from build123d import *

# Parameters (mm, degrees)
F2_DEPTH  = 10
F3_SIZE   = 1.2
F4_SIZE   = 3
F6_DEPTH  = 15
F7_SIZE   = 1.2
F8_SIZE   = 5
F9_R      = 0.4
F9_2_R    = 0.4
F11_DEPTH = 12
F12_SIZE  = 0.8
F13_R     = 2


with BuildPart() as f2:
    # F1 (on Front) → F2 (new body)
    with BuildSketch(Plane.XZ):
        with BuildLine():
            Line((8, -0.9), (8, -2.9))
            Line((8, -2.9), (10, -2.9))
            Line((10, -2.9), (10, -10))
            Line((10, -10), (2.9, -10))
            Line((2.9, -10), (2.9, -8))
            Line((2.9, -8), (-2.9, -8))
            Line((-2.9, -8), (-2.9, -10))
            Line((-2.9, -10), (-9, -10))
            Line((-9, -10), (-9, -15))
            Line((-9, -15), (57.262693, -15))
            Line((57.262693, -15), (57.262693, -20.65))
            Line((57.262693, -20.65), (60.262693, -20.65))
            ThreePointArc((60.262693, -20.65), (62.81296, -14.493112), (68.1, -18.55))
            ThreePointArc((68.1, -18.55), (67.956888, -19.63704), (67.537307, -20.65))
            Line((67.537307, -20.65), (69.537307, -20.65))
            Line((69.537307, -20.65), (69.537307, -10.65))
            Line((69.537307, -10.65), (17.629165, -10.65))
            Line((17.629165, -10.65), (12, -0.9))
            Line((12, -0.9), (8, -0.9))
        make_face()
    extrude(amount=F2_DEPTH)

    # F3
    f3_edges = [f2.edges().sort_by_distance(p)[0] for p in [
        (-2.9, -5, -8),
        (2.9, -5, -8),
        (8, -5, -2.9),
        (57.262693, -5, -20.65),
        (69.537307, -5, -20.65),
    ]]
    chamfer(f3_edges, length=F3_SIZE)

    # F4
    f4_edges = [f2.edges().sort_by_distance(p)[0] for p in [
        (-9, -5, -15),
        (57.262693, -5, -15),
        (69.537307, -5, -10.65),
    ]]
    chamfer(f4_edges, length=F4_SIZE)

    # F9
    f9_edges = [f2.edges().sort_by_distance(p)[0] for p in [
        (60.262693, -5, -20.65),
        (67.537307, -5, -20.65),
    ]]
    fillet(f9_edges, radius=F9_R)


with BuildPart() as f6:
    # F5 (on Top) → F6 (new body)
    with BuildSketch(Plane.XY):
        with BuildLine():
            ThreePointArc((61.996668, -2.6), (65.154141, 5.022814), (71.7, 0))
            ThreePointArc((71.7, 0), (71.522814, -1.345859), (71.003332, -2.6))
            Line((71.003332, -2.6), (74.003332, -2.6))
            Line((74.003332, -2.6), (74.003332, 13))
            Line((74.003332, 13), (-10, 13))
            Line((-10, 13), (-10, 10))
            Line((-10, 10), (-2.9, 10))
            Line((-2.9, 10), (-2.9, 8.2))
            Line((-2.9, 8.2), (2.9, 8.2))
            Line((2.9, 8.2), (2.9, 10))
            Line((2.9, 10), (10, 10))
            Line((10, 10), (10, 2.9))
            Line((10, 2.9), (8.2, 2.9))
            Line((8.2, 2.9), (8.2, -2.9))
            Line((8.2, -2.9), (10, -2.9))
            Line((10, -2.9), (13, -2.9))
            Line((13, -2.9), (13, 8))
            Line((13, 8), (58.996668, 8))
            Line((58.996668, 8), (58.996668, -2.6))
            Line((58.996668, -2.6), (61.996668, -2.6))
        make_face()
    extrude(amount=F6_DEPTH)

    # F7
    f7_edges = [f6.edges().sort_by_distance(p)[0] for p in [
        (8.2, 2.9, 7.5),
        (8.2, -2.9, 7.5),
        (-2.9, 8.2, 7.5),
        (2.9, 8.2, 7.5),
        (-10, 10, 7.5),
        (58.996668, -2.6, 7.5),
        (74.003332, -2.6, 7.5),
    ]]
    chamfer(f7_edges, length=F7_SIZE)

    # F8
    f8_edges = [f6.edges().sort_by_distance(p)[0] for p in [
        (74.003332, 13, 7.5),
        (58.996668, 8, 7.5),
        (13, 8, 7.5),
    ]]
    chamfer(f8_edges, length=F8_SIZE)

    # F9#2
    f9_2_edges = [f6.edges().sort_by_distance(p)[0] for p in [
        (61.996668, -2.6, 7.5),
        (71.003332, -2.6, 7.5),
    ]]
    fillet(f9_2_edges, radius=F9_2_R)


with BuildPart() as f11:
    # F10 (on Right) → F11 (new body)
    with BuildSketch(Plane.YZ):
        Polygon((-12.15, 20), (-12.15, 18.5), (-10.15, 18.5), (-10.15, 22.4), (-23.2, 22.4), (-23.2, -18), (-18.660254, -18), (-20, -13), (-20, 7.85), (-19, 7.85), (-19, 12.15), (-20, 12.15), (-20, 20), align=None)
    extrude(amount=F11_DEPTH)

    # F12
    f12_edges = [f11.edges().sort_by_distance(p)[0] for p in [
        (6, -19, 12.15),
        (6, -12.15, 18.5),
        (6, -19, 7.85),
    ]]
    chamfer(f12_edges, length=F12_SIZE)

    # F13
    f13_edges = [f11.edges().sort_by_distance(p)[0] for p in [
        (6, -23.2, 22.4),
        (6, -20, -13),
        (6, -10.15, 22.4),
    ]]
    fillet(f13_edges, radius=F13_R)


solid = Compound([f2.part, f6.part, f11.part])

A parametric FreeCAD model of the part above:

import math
import FreeCAD as App
import Part
import Sketcher
Q = App.Units.Quantity


def edges_at(feature, points):
    """Names of the edges that pass closest to the given points."""
    edges = feature.Shape.Edges
    near = lambda p: min(range(len(edges)), key=lambda i: edges[i].distToShape(Part.Vertex(*p))[0])
    return sorted({f"Edge{near(p) + 1}" for p in points})

doc = App.newDocument("Part")
body = doc.addObject("PartDesign::Body", "Body")

# Sketch on XZ plane
sketch1 = doc.addObject("Sketcher::SketchObject", "Sketch")
body.addObject(sketch1)
sketch1.AttachmentSupport = (doc.XZ_Plane, [""])
sketch1.MapMode = "FlatFace"
sketch1.addGeometry([
    Part.LineSegment(App.Vector(8, -0.9, 0), App.Vector(8, -2.9, 0)),  # 0
    Part.LineSegment(App.Vector(8, -2.9, 0), App.Vector(10, -2.9, 0)),  # 1
    Part.LineSegment(App.Vector(10, -2.9, 0), App.Vector(10, -10, 0)),  # 2
    Part.LineSegment(App.Vector(10, -10, 0), App.Vector(2.9, -10, 0)),  # 3
    Part.LineSegment(App.Vector(2.9, -10, 0), App.Vector(2.9, -8, 0)),  # 4
    Part.LineSegment(App.Vector(2.9, -8, 0), App.Vector(-2.9, -8, 0)),  # 5
    Part.LineSegment(App.Vector(-2.9, -8, 0), App.Vector(-2.9, -10, 0)),  # 6
    Part.LineSegment(App.Vector(-2.9, -10, 0), App.Vector(-9, -10, 0)),  # 7
    Part.LineSegment(App.Vector(-9, -10, 0), App.Vector(-9, -15, 0)),  # 8
    Part.LineSegment(App.Vector(-9, -15, 0), App.Vector(57.3, -15, 0)),  # 9
    Part.LineSegment(App.Vector(57.3, -15, 0), App.Vector(57.3, -20.6, 0)),  # 10
    Part.LineSegment(App.Vector(57.3, -20.6, 0), App.Vector(60.3, -20.6, 0)),  # 11
    Part.ArcOfCircle(Part.Circle(App.Vector(63.9, -18.6, 0), App.Vector(0, 0, 1), 4.2), math.radians(0), math.radians(210)),  # 12
    Part.ArcOfCircle(Part.Circle(App.Vector(63.9, -18.5, 0), App.Vector(0, 0, 1), 4.2), math.radians(-30), math.radians(0)),  # 13
    Part.LineSegment(App.Vector(67.5, -20.6, 0), App.Vector(69.5, -20.6, 0)),  # 14
    Part.LineSegment(App.Vector(69.5, -20.6, 0), App.Vector(69.5, -10.7, 0)),  # 15
    Part.LineSegment(App.Vector(69.5, -10.7, 0), App.Vector(17.6, -10.7, 0)),  # 16
    Part.LineSegment(App.Vector(17.6, -10.7, 0), App.Vector(12, -0.9, 0)),  # 17
    Part.LineSegment(App.Vector(12, -0.9, 0), App.Vector(8, -0.9, 0)),  # 18
], False)
sketch1.addConstraint([
    Sketcher.Constraint("Coincident", 0, 2, 1, 1),
    Sketcher.Constraint("Coincident", 1, 2, 2, 1),
    Sketcher.Constraint("Coincident", 2, 2, 3, 1),
    Sketcher.Constraint("Coincident", 3, 2, 4, 1),
    Sketcher.Constraint("Coincident", 4, 2, 5, 1),
    Sketcher.Constraint("Coincident", 5, 2, 6, 1),
    Sketcher.Constraint("Coincident", 6, 2, 7, 1),
    Sketcher.Constraint("Coincident", 7, 2, 8, 1),
    Sketcher.Constraint("Coincident", 8, 2, 9, 1),
    Sketcher.Constraint("Coincident", 9, 2, 10, 1),
    Sketcher.Constraint("Coincident", 10, 2, 11, 1),
    Sketcher.Constraint("Coincident", 11, 2, 12, 2),
    Sketcher.Constraint("Tangent", 12, 1, 13, 2),
    Sketcher.Constraint("Coincident", 13, 1, 14, 1),
    Sketcher.Constraint("Coincident", 14, 2, 15, 1),
    Sketcher.Constraint("Coincident", 15, 2, 16, 1),
    Sketcher.Constraint("Coincident", 16, 2, 17, 1),
    Sketcher.Constraint("Coincident", 17, 2, 18, 1),
    Sketcher.Constraint("Coincident", 18, 2, 0, 1),
    Sketcher.Constraint("Vertical", 0),
    Sketcher.Constraint("Horizontal", 1),
    Sketcher.Constraint("Vertical", 2),
    Sketcher.Constraint("Horizontal", 3),
    Sketcher.Constraint("Vertical", 4),
    Sketcher.Constraint("Horizontal", 5),
    Sketcher.Constraint("Vertical", 6),
    Sketcher.Constraint("Horizontal", 7),
    Sketcher.Constraint("Vertical", 8),
    Sketcher.Constraint("Horizontal", 9),
    Sketcher.Constraint("Vertical", 10),
    Sketcher.Constraint("Horizontal", 11),
    Sketcher.Constraint("Horizontal", 14),
    Sketcher.Constraint("Vertical", 15),
    Sketcher.Constraint("Horizontal", 16),
    Sketcher.Constraint("Horizontal", 18),
    Sketcher.Constraint("Symmetric", 3, 2, 6, 2, -2),
    Sketcher.Constraint("Horizontal", 11, 2, 13, 1),
    Sketcher.Constraint("Equal", 1, 14),
    Sketcher.Constraint("Equal", 14, 0),
    Sketcher.Constraint("Equal", 3, 2),
    Sketcher.Constraint("Equal", 0, 4),
    Sketcher.Constraint("Radius", 12, 4.2),
    Sketcher.Constraint("DistanceX", 1, 1, 1, 2, 2.0),
    Sketcher.Constraint("DistanceX", 11, 1, 11, 2, 3.0),
    Sketcher.Constraint("DistanceX", 18, 2, 18, 1, 4.0),
    Sketcher.Constraint("DistanceY", 8, 2, 8, 1, 5.0),
    Sketcher.Constraint("DistanceY", 15, 1, 15, 2, 10.0),
    Sketcher.Constraint("Angle", 17, Q("119.999999 deg")),
    Sketcher.Constraint("DistanceX", 3, 2, 3, 1, 7.1),
    Sketcher.Constraint("DistanceX", 5, 2, 5, 1, 5.8),
    Sketcher.Constraint("DistanceX", 7, 2, 7, 1, 6.1),
    Sketcher.Constraint("DistanceY", 2, 2, -1, 1, 10.0),
    Sketcher.Constraint("DistanceX", 3, 2, 12, 3, 61.0),
    Sketcher.Constraint("DistanceY", 10, 2, 10, 1, 5.65),
    Sketcher.Constraint("DistanceY", 10, 2, 12, 3, 2.1),
    Sketcher.Constraint("DistanceY", 11, 2, 12, 1, 2.1),
    Sketcher.Constraint("Radius", 13, 4.200017),
])
pad1 = doc.addObject("PartDesign::Pad", "Pad")
body.addObject(pad1)
pad1.Profile = sketch1
pad1.Length = 10
doc.recompute()

chamfer = doc.addObject("PartDesign::Chamfer", "Chamfer")
body.addObject(chamfer)
chamfer.Base = (pad1, edges_at(pad1, [
    (-2.9, -5, -8),
    (2.9, -5, -8),
    (8, -5, -2.9),
    (57.263, -5, -20.65),
    (69.537, -5, -20.65),
]))
chamfer.Size = 1.2
doc.recompute()

chamfer2 = doc.addObject("PartDesign::Chamfer", "Chamfer001")
body.addObject(chamfer2)
chamfer2.Base = (chamfer, edges_at(chamfer, [(-9, -5, -15), (57.263, -5, -15), (69.537, -5, -10.65)]))
chamfer2.Size = 3
doc.recompute()

fillet = doc.addObject("PartDesign::Fillet", "Fillet")
body.addObject(fillet)
fillet.Base = (chamfer2, edges_at(chamfer2, [(60.263, -5, -20.65), (67.537, -5, -20.65)]))
fillet.Radius = 0.4
body2 = doc.addObject("PartDesign::Body", "Body001")

# Sketch on XY plane
sketch2 = doc.addObject("Sketcher::SketchObject", "Sketch001")
body2.addObject(sketch2)
sketch2.AttachmentSupport = (doc.getObject("XY_Plane001"), [""])
sketch2.MapMode = "FlatFace"
sketch2.addGeometry([
    Part.ArcOfCircle(Part.Circle(App.Vector(66.5, 0, 0), App.Vector(0, 0, 1), 5.2), math.radians(0), math.radians(210)),  # 0
    Part.ArcOfCircle(Part.Circle(App.Vector(66.5, 0, 0), App.Vector(0, 0, 1), 5.2), math.radians(-30), math.radians(0)),  # 1
    Part.LineSegment(App.Vector(71, -2.6, 0), App.Vector(74, -2.6, 0)),  # 2
    Part.LineSegment(App.Vector(74, -2.6, 0), App.Vector(74, 13, 0)),  # 3
    Part.LineSegment(App.Vector(74, 13, 0), App.Vector(-10, 13, 0)),  # 4
    Part.LineSegment(App.Vector(-10, 13, 0), App.Vector(-10, 10, 0)),  # 5
    Part.LineSegment(App.Vector(-10, 10, 0), App.Vector(-2.9, 10, 0)),  # 6
    Part.LineSegment(App.Vector(-2.9, 10, 0), App.Vector(-2.9, 8.2, 0)),  # 7
    Part.LineSegment(App.Vector(-2.9, 8.2, 0), App.Vector(2.9, 8.2, 0)),  # 8
    Part.LineSegment(App.Vector(2.9, 8.2, 0), App.Vector(2.9, 10, 0)),  # 9
    Part.LineSegment(App.Vector(2.9, 10, 0), App.Vector(10, 10, 0)),  # 10
    Part.LineSegment(App.Vector(10, 10, 0), App.Vector(10, 2.9, 0)),  # 11
    Part.LineSegment(App.Vector(10, 2.9, 0), App.Vector(8.2, 2.9, 0)),  # 12
    Part.LineSegment(App.Vector(8.2, 2.9, 0), App.Vector(8.2, -2.9, 0)),  # 13
    Part.LineSegment(App.Vector(8.2, -2.9, 0), App.Vector(13, -2.9, 0)),  # 14
    Part.LineSegment(App.Vector(13, -2.9, 0), App.Vector(13, 8, 0)),  # 15
    Part.LineSegment(App.Vector(13, 8, 0), App.Vector(59, 8, 0)),  # 16
    Part.LineSegment(App.Vector(59, 8, 0), App.Vector(59, -2.6, 0)),  # 17
    Part.LineSegment(App.Vector(59, -2.6, 0), App.Vector(62, -2.6, 0)),  # 18
], False)
sketch2.addConstraint([
    Sketcher.Constraint("Tangent", 0, 1, 1, 2),
    Sketcher.Constraint("Coincident", 1, 1, 2, 1),
    Sketcher.Constraint("Coincident", 2, 2, 3, 1),
    Sketcher.Constraint("Coincident", 3, 2, 4, 1),
    Sketcher.Constraint("Coincident", 4, 2, 5, 1),
    Sketcher.Constraint("Coincident", 5, 2, 6, 1),
    Sketcher.Constraint("Coincident", 6, 2, 7, 1),
    Sketcher.Constraint("Coincident", 7, 2, 8, 1),
    Sketcher.Constraint("Coincident", 8, 2, 9, 1),
    Sketcher.Constraint("Coincident", 9, 2, 10, 1),
    Sketcher.Constraint("Coincident", 10, 2, 11, 1),
    Sketcher.Constraint("Coincident", 11, 2, 12, 1),
    Sketcher.Constraint("Coincident", 12, 2, 13, 1),
    Sketcher.Constraint("Coincident", 13, 2, 14, 1),
    Sketcher.Constraint("Coincident", 14, 2, 15, 1),
    Sketcher.Constraint("Coincident", 15, 2, 16, 1),
    Sketcher.Constraint("Coincident", 16, 2, 17, 1),
    Sketcher.Constraint("Coincident", 17, 2, 18, 1),
    Sketcher.Constraint("Coincident", 18, 2, 0, 2),
    Sketcher.Constraint("Horizontal", 2),
    Sketcher.Constraint("Vertical", 3),
    Sketcher.Constraint("Horizontal", 4),
    Sketcher.Constraint("Vertical", 5),
    Sketcher.Constraint("Horizontal", 6),
    Sketcher.Constraint("Vertical", 7),
    Sketcher.Constraint("Horizontal", 8),
    Sketcher.Constraint("Vertical", 9),
    Sketcher.Constraint("Horizontal", 10),
    Sketcher.Constraint("Vertical", 11),
    Sketcher.Constraint("Horizontal", 12),
    Sketcher.Constraint("Vertical", 13),
    Sketcher.Constraint("Horizontal", 14),
    Sketcher.Constraint("Vertical", 15),
    Sketcher.Constraint("Horizontal", 16),
    Sketcher.Constraint("Vertical", 17),
    Sketcher.Constraint("Horizontal", 18),
    Sketcher.Constraint("Symmetric", 6, 2, 9, 2, -2),
    Sketcher.Constraint("PointOnObject", 0, 3, -1),
    Sketcher.Constraint("PointOnObject", 0, 1, -1),
    Sketcher.Constraint("Horizontal", 2, 2, 17, 2),
    Sketcher.Constraint("Equal", 6, 10),
    Sketcher.Constraint("Equal", 2, 18),
    Sketcher.Constraint("Equal", 18, 5),
    Sketcher.Constraint("Equal", 12, 7),
    Sketcher.Constraint("Equal", 10, 11),
    Sketcher.Constraint("Equal", 8, 13),
    Sketcher.Constraint("Radius", 0, 5.2),
    Sketcher.Constraint("DistanceX", 2, 1, 2, 2, 3.0),
    Sketcher.Constraint("DistanceX", 6, 1, 6, 2, 7.1),
    Sketcher.Constraint("DistanceX", 8, 1, 8, 2, 5.8),
    Sketcher.Constraint("DistanceX", 12, 2, 12, 1, 1.8),
    Sketcher.Constraint("DistanceX", 14, 1, 14, 2, 4.8),
    Sketcher.Constraint("DistanceY", 3, 1, 3, 2, 15.6),
    Sketcher.Constraint("DistanceY", 15, 1, 15, 2, 10.9),
    Sketcher.Constraint("DistanceY", -1, 1, 3, 2, 13.0),
    Sketcher.Constraint("DistanceX", -1, 1, 0, 3, 66.5),
    Sketcher.Constraint("Radius", 1, 5.200007),
])
pad2 = doc.addObject("PartDesign::Pad", "Pad001")
body2.addObject(pad2)
pad2.Profile = sketch2
pad2.Length = 15
doc.recompute()

chamfer3 = doc.addObject("PartDesign::Chamfer", "Chamfer002")
body2.addObject(chamfer3)
chamfer3.Base = (pad2, edges_at(pad2, [
    (8.2, 2.9, 7.5),
    (8.2, -2.9, 7.5),
    (-2.9, 8.2, 7.5),
    (2.9, 8.2, 7.5),
    (-10, 10, 7.5),
    (58.997, -2.6, 7.5),
    (74.003, -2.6, 7.5),
]))
chamfer3.Size = 1.2
doc.recompute()

chamfer4 = doc.addObject("PartDesign::Chamfer", "Chamfer003")
body2.addObject(chamfer4)
chamfer4.Base = (chamfer3, edges_at(chamfer3, [(74.003, 13, 7.5), (58.997, 8, 7.5), (13, 8, 7.5)]))
chamfer4.Size = 5
doc.recompute()

fillet2 = doc.addObject("PartDesign::Fillet", "Fillet001")
body2.addObject(fillet2)
fillet2.Base = (chamfer4, edges_at(chamfer4, [(61.997, -2.6, 7.5), (71.003, -2.6, 7.5)]))
fillet2.Radius = 0.4
body3 = doc.addObject("PartDesign::Body", "Body002")

# Sketch on YZ plane
sketch3 = doc.addObject("Sketcher::SketchObject", "Sketch002")
body3.addObject(sketch3)
sketch3.AttachmentSupport = (doc.getObject("YZ_Plane002"), [""])
sketch3.MapMode = "FlatFace"
sketch3.addGeometry([
    Part.LineSegment(App.Vector(-12.2, 20, 0), App.Vector(-12.2, 18.5, 0)),  # 0
    Part.LineSegment(App.Vector(-12.2, 18.5, 0), App.Vector(-10.2, 18.5, 0)),  # 1
    Part.LineSegment(App.Vector(-10.2, 18.5, 0), App.Vector(-10.2, 22.4, 0)),  # 2
    Part.LineSegment(App.Vector(-10.2, 22.4, 0), App.Vector(-23.2, 22.4, 0)),  # 3
    Part.LineSegment(App.Vector(-23.2, 22.4, 0), App.Vector(-23.2, -18, 0)),  # 4
    Part.LineSegment(App.Vector(-23.2, -18, 0), App.Vector(-18.7, -18, 0)),  # 5
    Part.LineSegment(App.Vector(-18.7, -18, 0), App.Vector(-20, -13, 0)),  # 6
    Part.LineSegment(App.Vector(-20, -13, 0), App.Vector(-20, 7.8, 0)),  # 7
    Part.LineSegment(App.Vector(-20, 7.8, 0), App.Vector(-19, 7.8, 0)),  # 8
    Part.LineSegment(App.Vector(-19, 7.8, 0), App.Vector(-19, 12.2, 0)),  # 9
    Part.LineSegment(App.Vector(-19, 12.2, 0), App.Vector(-20, 12.2, 0)),  # 10
    Part.LineSegment(App.Vector(-20, 12.2, 0), App.Vector(-20, 20, 0)),  # 11
    Part.LineSegment(App.Vector(-20, 20, 0), App.Vector(-12.2, 20, 0)),  # 12
], False)
sketch3.addConstraint([
    Sketcher.Constraint("Coincident", 0, 2, 1, 1),
    Sketcher.Constraint("Coincident", 1, 2, 2, 1),
    Sketcher.Constraint("Coincident", 2, 2, 3, 1),
    Sketcher.Constraint("Coincident", 3, 2, 4, 1),
    Sketcher.Constraint("Coincident", 4, 2, 5, 1),
    Sketcher.Constraint("Coincident", 5, 2, 6, 1),
    Sketcher.Constraint("Coincident", 6, 2, 7, 1),
    Sketcher.Constraint("Coincident", 7, 2, 8, 1),
    Sketcher.Constraint("Coincident", 8, 2, 9, 1),
    Sketcher.Constraint("Coincident", 9, 2, 10, 1),
    Sketcher.Constraint("Coincident", 10, 2, 11, 1),
    Sketcher.Constraint("Coincident", 11, 2, 12, 1),
    Sketcher.Constraint("Coincident", 12, 2, 0, 1),
    Sketcher.Constraint("Vertical", 0),
    Sketcher.Constraint("Horizontal", 1),
    Sketcher.Constraint("Vertical", 2),
    Sketcher.Constraint("Horizontal", 3),
    Sketcher.Constraint("Vertical", 4),
    Sketcher.Constraint("Horizontal", 5),
    Sketcher.Constraint("Vertical", 7),
    Sketcher.Constraint("Horizontal", 8),
    Sketcher.Constraint("Vertical", 9),
    Sketcher.Constraint("Horizontal", 10),
    Sketcher.Constraint("Vertical", 11),
    Sketcher.Constraint("Horizontal", 12),
    Sketcher.Constraint("Vertical", 7, 2, 10, 2),
    Sketcher.Constraint("Equal", 12, 11),
    Sketcher.Constraint("DistanceX", 1, 1, 1, 2, 2.0),
    Sketcher.Constraint("DistanceX", 8, 1, 8, 2, 1.0),
    Sketcher.Constraint("Angle", 6, Q("105 deg")),
    Sketcher.Constraint("DistanceY", 0, 2, 0, 1, 1.5),
    Sketcher.Constraint("DistanceY", 2, 1, 2, 2, 3.9),
    Sketcher.Constraint("DistanceY", 4, 2, 4, 1, 40.4),
    Sketcher.Constraint("DistanceY", 9, 1, 9, 2, 4.3),
    Sketcher.Constraint("DistanceY", 4, 2, -1, 1, 18.0),
    Sketcher.Constraint("DistanceX", 6, 2, -1, 1, 20.0),
    Sketcher.Constraint("DistanceY", 6, 2, -1, 1, 13.0),
    Sketcher.Constraint("DistanceX", 3, 2, 3, 1, 13.05),
    Sketcher.Constraint("DistanceX", 12, 1, 12, 2, 7.85),
])
pad3 = doc.addObject("PartDesign::Pad", "Pad002")
body3.addObject(pad3)
pad3.Profile = sketch3
pad3.Length = 12
doc.recompute()

chamfer5 = doc.addObject("PartDesign::Chamfer", "Chamfer004")
body3.addObject(chamfer5)
chamfer5.Base = (pad3, edges_at(pad3, [(6, -19, 12.15), (6, -12.15, 18.5), (6, -19, 7.85)]))
chamfer5.Size = 0.8
doc.recompute()

fillet3 = doc.addObject("PartDesign::Fillet", "Fillet002")
body3.addObject(fillet3)
fillet3.Base = (chamfer5, edges_at(chamfer5, [(6, -23.2, 22.4), (6, -20, -13), (6, -10.15, 22.4)]))
fillet3.Radius = 2

doc.recompute()
